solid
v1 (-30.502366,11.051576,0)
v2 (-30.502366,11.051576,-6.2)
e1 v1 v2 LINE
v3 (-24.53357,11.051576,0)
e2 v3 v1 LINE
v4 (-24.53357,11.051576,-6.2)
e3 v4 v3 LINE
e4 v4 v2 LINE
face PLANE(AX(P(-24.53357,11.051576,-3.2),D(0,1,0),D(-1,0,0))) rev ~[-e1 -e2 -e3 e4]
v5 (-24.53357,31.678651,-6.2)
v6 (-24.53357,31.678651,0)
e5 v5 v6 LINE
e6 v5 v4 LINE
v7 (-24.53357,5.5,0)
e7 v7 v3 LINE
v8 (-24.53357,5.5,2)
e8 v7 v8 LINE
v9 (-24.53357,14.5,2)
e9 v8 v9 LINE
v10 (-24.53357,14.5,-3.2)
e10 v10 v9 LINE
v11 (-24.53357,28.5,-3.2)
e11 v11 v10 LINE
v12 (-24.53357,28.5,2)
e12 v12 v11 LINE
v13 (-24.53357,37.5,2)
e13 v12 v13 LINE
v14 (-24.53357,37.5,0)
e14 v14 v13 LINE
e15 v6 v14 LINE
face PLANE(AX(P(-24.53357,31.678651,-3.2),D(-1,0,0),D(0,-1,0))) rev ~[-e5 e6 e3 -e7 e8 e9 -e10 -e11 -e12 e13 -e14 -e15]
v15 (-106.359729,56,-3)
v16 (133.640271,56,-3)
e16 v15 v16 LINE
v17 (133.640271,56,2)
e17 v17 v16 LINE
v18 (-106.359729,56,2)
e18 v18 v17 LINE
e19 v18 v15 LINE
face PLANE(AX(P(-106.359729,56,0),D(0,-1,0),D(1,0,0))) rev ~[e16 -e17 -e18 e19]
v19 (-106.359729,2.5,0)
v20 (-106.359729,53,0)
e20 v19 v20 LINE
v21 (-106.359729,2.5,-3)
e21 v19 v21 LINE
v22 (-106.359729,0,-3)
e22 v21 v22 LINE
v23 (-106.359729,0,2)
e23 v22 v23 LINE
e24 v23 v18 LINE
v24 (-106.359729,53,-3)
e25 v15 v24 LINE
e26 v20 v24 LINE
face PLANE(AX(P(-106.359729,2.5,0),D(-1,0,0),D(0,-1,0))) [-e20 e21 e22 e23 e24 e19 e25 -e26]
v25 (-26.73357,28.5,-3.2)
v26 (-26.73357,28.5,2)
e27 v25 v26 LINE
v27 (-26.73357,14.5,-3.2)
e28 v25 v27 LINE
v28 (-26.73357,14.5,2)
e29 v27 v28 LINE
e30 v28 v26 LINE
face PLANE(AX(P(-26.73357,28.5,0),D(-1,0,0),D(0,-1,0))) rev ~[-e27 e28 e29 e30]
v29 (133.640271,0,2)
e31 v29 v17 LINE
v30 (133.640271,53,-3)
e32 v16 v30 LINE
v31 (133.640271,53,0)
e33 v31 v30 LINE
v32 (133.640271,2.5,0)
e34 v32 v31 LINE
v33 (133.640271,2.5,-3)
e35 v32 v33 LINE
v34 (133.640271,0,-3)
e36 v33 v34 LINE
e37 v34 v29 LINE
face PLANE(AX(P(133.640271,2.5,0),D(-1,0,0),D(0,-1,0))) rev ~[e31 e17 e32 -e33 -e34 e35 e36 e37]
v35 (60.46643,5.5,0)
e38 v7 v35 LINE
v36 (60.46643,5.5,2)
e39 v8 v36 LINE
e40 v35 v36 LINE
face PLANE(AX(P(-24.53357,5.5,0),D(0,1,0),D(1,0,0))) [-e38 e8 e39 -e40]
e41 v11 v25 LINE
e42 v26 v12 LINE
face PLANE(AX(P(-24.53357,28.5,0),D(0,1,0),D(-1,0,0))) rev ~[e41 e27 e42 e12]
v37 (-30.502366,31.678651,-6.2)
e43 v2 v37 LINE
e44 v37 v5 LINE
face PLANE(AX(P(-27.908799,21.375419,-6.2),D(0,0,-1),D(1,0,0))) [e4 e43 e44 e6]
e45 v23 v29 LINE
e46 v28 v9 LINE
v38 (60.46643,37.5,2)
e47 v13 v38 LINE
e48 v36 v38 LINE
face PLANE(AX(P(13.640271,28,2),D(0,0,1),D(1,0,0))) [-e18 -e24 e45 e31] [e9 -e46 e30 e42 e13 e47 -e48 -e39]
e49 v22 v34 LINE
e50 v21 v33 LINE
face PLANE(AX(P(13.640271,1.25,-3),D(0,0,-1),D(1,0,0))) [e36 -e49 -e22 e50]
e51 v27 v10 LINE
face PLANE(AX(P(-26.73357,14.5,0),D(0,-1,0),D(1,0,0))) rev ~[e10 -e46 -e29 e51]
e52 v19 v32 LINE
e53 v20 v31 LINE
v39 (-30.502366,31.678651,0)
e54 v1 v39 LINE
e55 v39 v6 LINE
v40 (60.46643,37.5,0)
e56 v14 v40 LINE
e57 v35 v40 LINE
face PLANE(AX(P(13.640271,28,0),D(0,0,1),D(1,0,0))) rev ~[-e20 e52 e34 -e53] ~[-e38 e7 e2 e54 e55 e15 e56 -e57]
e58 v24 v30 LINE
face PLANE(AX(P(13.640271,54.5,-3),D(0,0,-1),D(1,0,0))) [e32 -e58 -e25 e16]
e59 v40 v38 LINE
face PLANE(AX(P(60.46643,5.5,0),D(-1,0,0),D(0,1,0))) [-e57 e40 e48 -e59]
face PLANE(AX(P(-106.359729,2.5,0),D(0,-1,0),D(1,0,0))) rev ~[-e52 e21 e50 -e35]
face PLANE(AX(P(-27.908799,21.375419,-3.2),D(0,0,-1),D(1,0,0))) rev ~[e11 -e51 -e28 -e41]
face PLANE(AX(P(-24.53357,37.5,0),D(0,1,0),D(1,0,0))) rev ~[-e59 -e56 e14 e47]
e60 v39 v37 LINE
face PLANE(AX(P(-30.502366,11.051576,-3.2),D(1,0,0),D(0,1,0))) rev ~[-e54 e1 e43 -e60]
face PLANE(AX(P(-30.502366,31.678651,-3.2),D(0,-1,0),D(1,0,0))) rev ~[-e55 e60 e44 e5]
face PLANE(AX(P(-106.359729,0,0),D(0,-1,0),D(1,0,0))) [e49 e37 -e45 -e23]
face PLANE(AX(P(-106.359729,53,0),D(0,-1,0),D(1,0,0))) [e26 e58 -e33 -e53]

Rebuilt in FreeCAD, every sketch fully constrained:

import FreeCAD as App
import Part
import Sketcher
from FreeCAD import Vector
Q = App.Units.Quantity


def add_polygon(sketch, points):
    """Adds a closed chain of lines whose ends are joined by coincident constraints."""
    first, n = sketch.GeometryCount, len(points)
    for a, b in zip(points, points[1:] + points[:1]):
        sketch.addGeometry(Part.LineSegment(App.Vector(*a, 0), App.Vector(*b, 0)), False)
    for i in range(n):
        sketch.addConstraint(Sketcher.Constraint("Coincident", first + i, 2, first + (i + 1) % n, 1))

doc = App.newDocument("Part")
params = doc.addObject("Spreadsheet::Sheet", "Params")
for row, (alias, value) in enumerate([
    ("sketch1_width", "240 mm"),
    ("sketch1_width2", "85 mm"),
    ("sketch1_height", "56 mm"),
    ("sketch1_height2", "32 mm"),
    ("pad1_length", "2 mm"),
    ("sketch2_height", "14 mm"),
    ("sketch2_width", "2.2 mm"),
    ("pocket1_length", "25 mm"),
    ("sketch3_height", "14 mm"),
    ("sketch3_width", "2.2 mm"),
    ("pad2_length", "3.2 mm"),
    ("pad3_length", "3 mm"),
    ("sketch5_width", "240 mm"),
    ("sketch5_height", "3 mm"),
    ("pad4_length", "3 mm"),
    ("sketch6_width", "240 mm"),
    ("sketch6_height", "2.5 mm"),
    ("pad5_length", "3 mm"),
], start=1):
    params.set(f"A{row}", alias)
    params.set(f"B{row}", "=" + value)
    params.setAlias(f"B{row}", alias)

body = doc.addObject("PartDesign::Body", "Body")

sketch1 = body.newObject("Sketcher::SketchObject", "Sketch")
sketch1.AttachmentSupport = (doc.getObject("XY_Plane"), [""])
sketch1.MapMode = "FlatFace"
add_polygon(sketch1, [(-106, 56), (-106, 0), (134, 0), (134, 56)])
add_polygon(sketch1, [(60, 6), (-25, 6), (-25, 38), (60, 38)])
sketch1.addConstraint([
    Sketcher.Constraint("Vertical", 0),
    Sketcher.Constraint("Horizontal", 1),
    Sketcher.Constraint("Vertical", 2),
    Sketcher.Constraint("Horizontal", 3),
    Sketcher.Constraint("Horizontal", 4),
    Sketcher.Constraint("Vertical", 5),
    Sketcher.Constraint("Horizontal", 6),
    Sketcher.Constraint("Vertical", 7),
    Sketcher.Constraint("PointOnObject", 0, 2, -1),
    Sketcher.Constraint("DistanceX", 1, 1, 1, 2, Q("240 mm")),
    Sketcher.Constraint("DistanceX", 4, 2, 4, 1, Q("85 mm")),
    Sketcher.Constraint("DistanceY", 0, 2, 0, 1, Q("56 mm")),
    Sketcher.Constraint("DistanceY", 5, 1, 5, 2, Q("32 mm")),
    Sketcher.Constraint("DistanceY", -1, 1, 4, 2, Q("5.5 mm")),
    Sketcher.Constraint("DistanceX", 0, 2, -1, 1, Q("106.359729 mm")),
    Sketcher.Constraint("DistanceX", 4, 2, -1, 1, Q("24.53357 mm")),
])
sketch1.setExpression("Constraints[17]", "Params.sketch1_width")
sketch1.setExpression("Constraints[18]", "Params.sketch1_width2")
sketch1.setExpression("Constraints[19]", "Params.sketch1_height")
sketch1.setExpression("Constraints[20]", "Params.sketch1_height2")
pad1 = body.newObject("PartDesign::Pad", "Pad")
pad1.Profile = sketch1
pad1.setExpression("Length", "Params.pad1_length")

sketch2 = body.newObject("Sketcher::SketchObject", "Sketch001")
sketch2.AttachmentSupport = (doc.getObject("XY_Plane"), [""])
sketch2.MapMode = "FlatFace"
sketch2.AttachmentOffset = App.Placement(Vector(0, 0, 2), App.Rotation())
add_polygon(sketch2, [(-26.7, 28.5), (-26.7, 14.5), (-24.5, 14.5), (-24.5, 28.5)])
sketch2.addConstraint([
    Sketcher.Constraint("Vertical", 0),
    Sketcher.Constraint("Horizontal", 1),
    Sketcher.Constraint("Vertical", 2),
    Sketcher.Constraint("Horizontal", 3),
    Sketcher.Constraint("DistanceY", 0, 2, 0, 1, Q("14 mm")),
    Sketcher.Constraint("DistanceX", 1, 1, 1, 2, Q("2.2 mm")),
    Sketcher.Constraint("DistanceY", -1, 1, 0, 2, Q("14.5 mm")),
    Sketcher.Constraint("DistanceX", 0, 2, -1, 1, Q("26.73357 mm")),
])
sketch2.setExpression("Constraints[8]", "Params.sketch2_height")
sketch2.setExpression("Constraints[9]", "Params.sketch2_width")
pocket1 = body.newObject("PartDesign::Pocket", "Pocket")
pocket1.Profile = sketch2
pocket1.setExpression("Length", "Params.pocket1_length")

sketch3 = body.newObject("Sketcher::SketchObject", "Sketch002")
sketch3.AttachmentSupport = (doc.getObject("XY_Plane"), [""])
sketch3.MapMode = "FlatFace"
add_polygon(sketch3, [(-24.5, 14.5), (-24.5, 11.1), (-30.5, 11.1), (-30.5, 31.7), (-24.5, 31.7), (-24.5, 28.5), (-26.7, 28.5), (-26.7, 14.5)])
sketch3.addConstraint([
    Sketcher.Constraint("Vertical", 0),
    Sketcher.Constraint("Horizontal", 1),
    Sketcher.Constraint("Vertical", 2),
    Sketcher.Constraint("Horizontal", 3),
    Sketcher.Constraint("Vertical", 4),
    Sketcher.Constraint("Horizontal", 5),
    Sketcher.Constraint("Vertical", 6),
    Sketcher.Constraint("Horizontal", 7),
    Sketcher.Constraint("Vertical", 0, 2, 3, 2),
    Sketcher.Constraint("DistanceY", 6, 2, 6, 1, Q("14 mm")),
    Sketcher.Constraint("DistanceX", 5, 2, 5, 1, Q("2.2 mm")),
    Sketcher.Constraint("DistanceY", -1, 1, 4, 2, Q("28.5 mm")),
    Sketcher.Constraint("DistanceY", 4, 2, 4, 1, Q("3.178651 mm")),
    Sketcher.Constraint("DistanceX", 1, 2, 1, 1, Q("5.968796 mm")),
    Sketcher.Constraint("DistanceY", 0, 2, 0, 1, Q("3.448424 mm")),
    Sketcher.Constraint("DistanceX", 0, 2, -1, 1, Q("24.53357 mm")),
])
sketch3.setExpression("Constraints[17]", "Params.sketch3_height")
sketch3.setExpression("Constraints[18]", "Params.sketch3_width")
pad2 = body.newObject("PartDesign::Pad", "Pad001")
pad2.Profile = sketch3
pad2.setExpression("Length", "Params.pad2_length")
pad2.Reversed = True

sketch4 = body.newObject("Sketcher::SketchObject", "Sketch003")
sketch4.AttachmentSupport = (doc.getObject("XY_Plane"), [""])
sketch4.MapMode = "FlatFace"
sketch4.AttachmentOffset = App.Placement(Vector(0, 0, -3.2), App.Rotation())
add_polygon(sketch4, [(-25, 11), (-31, 11), (-31, 32), (-25, 32)])
sketch4.addConstraint([
    Sketcher.Constraint("Horizontal", 0),
    Sketcher.Constraint("Vertical", 1),
    Sketcher.Constraint("Horizontal", 2),
    Sketcher.Constraint("Vertical", 3),
    Sketcher.Constraint("DistanceX", 0, 2, 0, 1, Q("5.968796 mm")),
    Sketcher.Constraint("DistanceY", 1, 1, 1, 2, Q("20.627075 mm")),
    Sketcher.Constraint("DistanceY", -1, 1, 1, 2, Q("31.678651 mm")),
    Sketcher.Constraint("DistanceX", 2, 2, -1, 1, Q("24.53357 mm")),
])
pad3 = body.newObject("PartDesign::Pad", "Pad002")
pad3.Profile = sketch4
pad3.setExpression("Length", "Params.pad3_length")
pad3.Reversed = True

sketch5 = body.newObject("Sketcher::SketchObject", "Sketch004")
sketch5.AttachmentSupport = (doc.getObject("XY_Plane"), [""])
sketch5.MapMode = "FlatFace"
add_polygon(sketch5, [(-106.4, 53), (-106.4, 56), (133.6, 56), (133.6, 53)])
sketch5.addConstraint([
    Sketcher.Constraint("Vertical", 0),
    Sketcher.Constraint("Horizontal", 1),
    Sketcher.Constraint("Vertical", 2),
    Sketcher.Constraint("Horizontal", 3),
    Sketcher.Constraint("DistanceX", 1, 1, 1, 2, Q("240 mm")),
    Sketcher.Constraint("DistanceY", 0, 1, 0, 2, Q("3 mm")),
    Sketcher.Constraint("DistanceY", -1, 1, 0, 2, Q("56 mm")),
    Sketcher.Constraint("DistanceX", 0, 2, -1, 1, Q("106.359729 mm")),
])
sketch5.setExpression("Constraints[8]", "Params.sketch5_width")
sketch5.setExpression("Constraints[9]", "Params.sketch5_height")
pad4 = body.newObject("PartDesign::Pad", "Pad003")
pad4.Profile = sketch5
pad4.setExpression("Length", "Params.pad4_length")
pad4.Reversed = True

sketch6 = body.newObject("Sketcher::SketchObject", "Sketch005")
sketch6.AttachmentSupport = (doc.getObject("XY_Plane"), [""])
sketch6.MapMode = "FlatFace"
add_polygon(sketch6, [(-106.4, 0), (-106.4, 2.5), (133.6, 2.5), (133.6, 0)])
sketch6.addConstraint([
    Sketcher.Constraint("Vertical", 0),
    Sketcher.Constraint("Horizontal", 1),
    Sketcher.Constraint("Vertical", 2),
    Sketcher.Constraint("Horizontal", 3),
    Sketcher.Constraint("PointOnObject", 2, 2, -1),
    Sketcher.Constraint("DistanceX", 1, 1, 1, 2, Q("240 mm")),
    Sketcher.Constraint("DistanceY", 0, 1, 0, 2, Q("2.5 mm")),
    Sketcher.Constraint("DistanceX", 0, 2, -1, 1, Q("106.359729 mm")),
])
sketch6.setExpression("Constraints[9]", "Params.sketch6_width")
sketch6.setExpression("Constraints[10]", "Params.sketch6_height")
pad5 = body.newObject("PartDesign::Pad", "Pad004")
pad5.Profile = sketch6
pad5.setExpression("Length", "Params.pad5_length")
pad5.Reversed = True

doc.recompute()
